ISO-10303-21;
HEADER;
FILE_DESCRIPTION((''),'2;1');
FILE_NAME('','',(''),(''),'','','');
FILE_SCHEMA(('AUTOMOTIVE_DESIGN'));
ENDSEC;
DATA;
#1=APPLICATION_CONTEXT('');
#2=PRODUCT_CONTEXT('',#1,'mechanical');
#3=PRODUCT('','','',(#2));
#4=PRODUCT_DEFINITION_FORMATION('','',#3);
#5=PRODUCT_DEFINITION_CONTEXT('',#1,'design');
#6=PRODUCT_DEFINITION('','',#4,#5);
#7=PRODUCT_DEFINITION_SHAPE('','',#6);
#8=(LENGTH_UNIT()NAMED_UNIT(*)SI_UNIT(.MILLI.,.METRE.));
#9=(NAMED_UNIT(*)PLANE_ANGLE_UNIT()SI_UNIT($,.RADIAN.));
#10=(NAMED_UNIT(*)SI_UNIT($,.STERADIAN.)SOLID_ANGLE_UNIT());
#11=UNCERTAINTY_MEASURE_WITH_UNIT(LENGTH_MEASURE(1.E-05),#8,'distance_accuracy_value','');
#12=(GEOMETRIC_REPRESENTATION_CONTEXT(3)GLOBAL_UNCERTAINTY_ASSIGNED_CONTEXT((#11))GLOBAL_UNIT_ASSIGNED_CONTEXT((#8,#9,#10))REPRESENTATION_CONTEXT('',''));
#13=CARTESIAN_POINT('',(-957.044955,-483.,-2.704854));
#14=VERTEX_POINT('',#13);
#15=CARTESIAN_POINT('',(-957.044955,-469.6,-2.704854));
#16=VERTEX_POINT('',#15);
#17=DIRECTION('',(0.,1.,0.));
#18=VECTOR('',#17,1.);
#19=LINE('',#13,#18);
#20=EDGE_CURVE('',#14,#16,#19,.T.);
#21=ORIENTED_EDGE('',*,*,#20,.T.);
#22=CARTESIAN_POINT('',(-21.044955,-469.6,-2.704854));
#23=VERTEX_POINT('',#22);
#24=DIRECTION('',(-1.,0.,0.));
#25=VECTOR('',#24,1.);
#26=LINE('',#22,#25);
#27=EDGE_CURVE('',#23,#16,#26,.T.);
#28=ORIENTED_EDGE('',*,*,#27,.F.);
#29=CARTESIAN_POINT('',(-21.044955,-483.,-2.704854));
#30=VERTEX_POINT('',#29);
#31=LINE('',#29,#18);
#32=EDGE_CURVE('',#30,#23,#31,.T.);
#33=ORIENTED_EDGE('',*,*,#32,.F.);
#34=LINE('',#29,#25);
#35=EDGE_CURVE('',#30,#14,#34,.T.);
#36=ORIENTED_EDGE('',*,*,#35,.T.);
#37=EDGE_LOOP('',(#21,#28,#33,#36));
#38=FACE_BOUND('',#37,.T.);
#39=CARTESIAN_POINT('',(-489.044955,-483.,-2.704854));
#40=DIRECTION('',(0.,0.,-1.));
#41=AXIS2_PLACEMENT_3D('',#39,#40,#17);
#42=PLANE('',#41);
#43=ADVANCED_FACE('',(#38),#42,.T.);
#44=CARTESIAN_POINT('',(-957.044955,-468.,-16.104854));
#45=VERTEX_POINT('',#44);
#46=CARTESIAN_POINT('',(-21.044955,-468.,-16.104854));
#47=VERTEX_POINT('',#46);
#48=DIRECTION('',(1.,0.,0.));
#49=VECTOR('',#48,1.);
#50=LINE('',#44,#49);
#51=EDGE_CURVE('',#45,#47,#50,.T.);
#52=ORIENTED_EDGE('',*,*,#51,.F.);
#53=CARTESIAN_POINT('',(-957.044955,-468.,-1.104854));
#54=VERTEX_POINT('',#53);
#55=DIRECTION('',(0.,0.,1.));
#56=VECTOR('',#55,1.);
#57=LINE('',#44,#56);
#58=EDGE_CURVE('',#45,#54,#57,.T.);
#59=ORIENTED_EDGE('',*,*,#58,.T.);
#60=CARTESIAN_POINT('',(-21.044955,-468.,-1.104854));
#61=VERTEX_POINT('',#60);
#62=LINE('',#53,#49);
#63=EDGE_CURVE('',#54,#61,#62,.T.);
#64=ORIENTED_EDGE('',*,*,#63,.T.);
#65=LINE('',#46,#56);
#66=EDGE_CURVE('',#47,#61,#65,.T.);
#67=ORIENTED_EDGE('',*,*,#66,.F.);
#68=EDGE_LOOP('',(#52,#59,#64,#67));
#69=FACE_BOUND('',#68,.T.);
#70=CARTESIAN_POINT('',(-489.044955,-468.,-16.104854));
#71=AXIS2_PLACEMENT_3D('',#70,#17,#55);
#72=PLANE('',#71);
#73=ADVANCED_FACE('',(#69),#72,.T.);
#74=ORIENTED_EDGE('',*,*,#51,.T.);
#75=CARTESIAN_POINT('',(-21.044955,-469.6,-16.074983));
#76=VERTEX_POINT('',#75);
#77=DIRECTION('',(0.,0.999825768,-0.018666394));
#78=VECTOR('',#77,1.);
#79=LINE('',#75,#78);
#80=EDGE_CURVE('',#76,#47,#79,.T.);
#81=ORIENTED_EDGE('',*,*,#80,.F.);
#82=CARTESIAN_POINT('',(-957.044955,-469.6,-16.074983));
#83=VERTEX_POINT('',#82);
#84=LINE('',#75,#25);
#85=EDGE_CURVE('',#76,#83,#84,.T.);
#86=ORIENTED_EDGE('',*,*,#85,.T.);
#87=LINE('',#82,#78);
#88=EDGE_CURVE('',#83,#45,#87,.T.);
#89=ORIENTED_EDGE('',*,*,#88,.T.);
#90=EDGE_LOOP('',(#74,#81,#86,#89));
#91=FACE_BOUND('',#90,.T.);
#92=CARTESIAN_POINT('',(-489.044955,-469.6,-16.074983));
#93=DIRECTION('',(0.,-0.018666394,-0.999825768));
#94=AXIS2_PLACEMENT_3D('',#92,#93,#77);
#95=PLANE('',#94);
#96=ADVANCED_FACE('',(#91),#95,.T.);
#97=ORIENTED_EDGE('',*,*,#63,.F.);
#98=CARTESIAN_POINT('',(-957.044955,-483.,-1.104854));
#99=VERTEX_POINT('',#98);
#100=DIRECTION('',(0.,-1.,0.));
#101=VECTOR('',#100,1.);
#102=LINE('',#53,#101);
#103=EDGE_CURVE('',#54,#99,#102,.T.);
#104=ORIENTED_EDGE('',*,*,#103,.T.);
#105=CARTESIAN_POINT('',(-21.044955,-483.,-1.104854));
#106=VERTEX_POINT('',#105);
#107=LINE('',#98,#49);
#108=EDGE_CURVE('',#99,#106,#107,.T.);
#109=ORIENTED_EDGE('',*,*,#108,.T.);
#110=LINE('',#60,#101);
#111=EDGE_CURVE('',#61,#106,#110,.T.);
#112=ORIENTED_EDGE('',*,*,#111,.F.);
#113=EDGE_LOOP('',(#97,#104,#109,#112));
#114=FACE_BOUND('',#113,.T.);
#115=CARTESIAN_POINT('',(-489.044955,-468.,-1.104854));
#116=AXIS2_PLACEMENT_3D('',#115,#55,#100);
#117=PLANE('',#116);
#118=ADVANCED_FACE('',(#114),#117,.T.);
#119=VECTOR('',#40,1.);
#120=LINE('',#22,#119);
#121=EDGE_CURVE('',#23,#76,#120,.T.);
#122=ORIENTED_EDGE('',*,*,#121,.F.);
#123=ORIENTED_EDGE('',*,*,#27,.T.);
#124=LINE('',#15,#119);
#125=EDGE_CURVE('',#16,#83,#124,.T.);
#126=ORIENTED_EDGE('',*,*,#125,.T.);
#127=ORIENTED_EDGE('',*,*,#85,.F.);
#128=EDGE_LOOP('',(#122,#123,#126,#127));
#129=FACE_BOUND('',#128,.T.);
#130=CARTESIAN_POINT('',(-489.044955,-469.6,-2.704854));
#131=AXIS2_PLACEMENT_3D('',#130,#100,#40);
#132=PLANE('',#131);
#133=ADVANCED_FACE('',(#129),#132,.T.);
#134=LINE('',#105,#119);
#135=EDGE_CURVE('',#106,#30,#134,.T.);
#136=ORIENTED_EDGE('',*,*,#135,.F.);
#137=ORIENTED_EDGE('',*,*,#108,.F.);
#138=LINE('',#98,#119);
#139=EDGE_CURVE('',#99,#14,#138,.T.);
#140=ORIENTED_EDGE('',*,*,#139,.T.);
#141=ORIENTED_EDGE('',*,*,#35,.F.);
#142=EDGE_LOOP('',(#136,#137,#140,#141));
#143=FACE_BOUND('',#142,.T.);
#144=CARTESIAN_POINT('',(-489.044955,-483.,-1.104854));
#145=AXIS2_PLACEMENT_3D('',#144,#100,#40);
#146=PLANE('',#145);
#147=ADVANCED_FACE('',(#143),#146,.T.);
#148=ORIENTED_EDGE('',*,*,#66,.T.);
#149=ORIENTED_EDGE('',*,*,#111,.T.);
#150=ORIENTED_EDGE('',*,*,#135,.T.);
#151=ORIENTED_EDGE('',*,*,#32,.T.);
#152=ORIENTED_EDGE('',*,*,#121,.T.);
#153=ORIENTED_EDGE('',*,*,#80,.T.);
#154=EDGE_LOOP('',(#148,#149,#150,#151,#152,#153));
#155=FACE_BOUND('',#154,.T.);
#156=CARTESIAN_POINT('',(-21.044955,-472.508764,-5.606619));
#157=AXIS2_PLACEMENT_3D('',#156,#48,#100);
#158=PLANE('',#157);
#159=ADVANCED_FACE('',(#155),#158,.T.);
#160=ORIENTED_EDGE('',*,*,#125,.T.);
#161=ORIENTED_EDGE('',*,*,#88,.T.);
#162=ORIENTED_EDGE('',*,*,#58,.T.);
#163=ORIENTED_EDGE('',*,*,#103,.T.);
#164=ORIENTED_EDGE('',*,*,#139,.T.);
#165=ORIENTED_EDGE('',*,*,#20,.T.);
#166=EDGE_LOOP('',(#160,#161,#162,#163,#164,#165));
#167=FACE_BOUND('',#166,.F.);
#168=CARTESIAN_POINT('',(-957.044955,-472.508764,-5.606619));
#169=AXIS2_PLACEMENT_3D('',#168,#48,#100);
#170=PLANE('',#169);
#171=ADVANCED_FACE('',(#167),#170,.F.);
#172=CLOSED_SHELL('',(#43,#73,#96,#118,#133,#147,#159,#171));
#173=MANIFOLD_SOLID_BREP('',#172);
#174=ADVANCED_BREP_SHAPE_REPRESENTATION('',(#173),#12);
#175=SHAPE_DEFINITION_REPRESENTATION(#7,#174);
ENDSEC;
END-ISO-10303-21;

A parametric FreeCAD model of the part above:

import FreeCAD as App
import Part
import Sketcher
Q = App.Units.Quantity


def add_polygon(sketch, points):
    """Adds a closed chain of lines whose ends are joined by coincident constraints."""
    first, n = sketch.GeometryCount, len(points)
    for a, b in zip(points, points[1:] + points[:1]):
        sketch.addGeometry(Part.LineSegment(App.Vector(*a, 0), App.Vector(*b, 0)), False)
    for i in range(n):
        sketch.addConstraint(Sketcher.Constraint("Coincident", first + i, 2, first + (i + 1) % n, 1))

doc = App.newDocument("Part")
params = doc.addObject("Spreadsheet::Sheet", "Params")
for row, (alias, value) in enumerate([
    ("sketch1_width", "15 mm"),
    ("sketch1_width2", "13.4 mm"),
    ("sketch1_height", "1.6 mm"),
    ("pad1_length", "936 mm"),
], start=1):
    params.set(f"A{row}", alias)
    params.set(f"B{row}", "=" + value)
    params.setAlias(f"B{row}", alias)

body = doc.addObject("PartDesign::Body", "Body")

# Sketch on XZ plane
sketch1 = doc.addObject("Sketcher::SketchObject", "Sketch")
body.addObject(sketch1)
sketch1.AttachmentSupport = (doc.XZ_Plane, [""])
sketch1.MapMode = "FlatFace"
add_polygon(sketch1, [(-19.444955, 13.865274), (-21.044955, 13.895146), (-21.044955, -1.104854), (-6.044955, -1.104854), (-6.044955, 0.495146), (-19.444955, 0.495146)])  # lines 0-5
sketch1.addConstraint(Sketcher.Constraint("Vertical", 1))
sketch1.addConstraint(Sketcher.Constraint("Horizontal", 2))
sketch1.addConstraint(Sketcher.Constraint("Vertical", 3))
sketch1.addConstraint(Sketcher.Constraint("Horizontal", 4))
sketch1.addConstraint(Sketcher.Constraint("Vertical", 5))
sketch1.addConstraint(Sketcher.Constraint("Equal", 2, 1))
sketch1.addConstraint(Sketcher.Constraint("DistanceX", 2, 1, 2, 2, Q("15 mm")))
sketch1.addConstraint(Sketcher.Constraint("DistanceX", 4, 2, 4, 1, Q("13.4 mm")))
sketch1.addConstraint(Sketcher.Constraint("DistanceY", 3, 1, 3, 2, Q("1.6 mm")))
sketch1.addConstraint(Sketcher.Constraint("DistanceY", 5, 1, 5, 2, Q("13.370129 mm")))
sketch1.addConstraint(Sketcher.Constraint("DistanceX", 0, 2, -1, 1, Q("21.044955 mm")))
sketch1.addConstraint(Sketcher.Constraint("DistanceY", -1, 1, 0, 2, Q("13.895146 mm")))
sketch1.setExpression("Constraints[12]", "Params.sketch1_width")
sketch1.setExpression("Constraints[13]", "Params.sketch1_width2")
sketch1.setExpression("Constraints[14]", "Params.sketch1_height")
pad1 = doc.addObject("PartDesign::Pad", "Pad")
body.addObject(pad1)
pad1.Profile = sketch1
pad1.setExpression("Length", "Params.pad1_length")
pad1.Midplane = True
body2 = doc.addObject("PartDesign::Body", "Body001")
doc.recompute()

body.Placement = App.Placement(App.Vector(-42.089911, 0, -2.209709), App.Rotation(App.Vector(0, -1, 0), 180))
boolean = doc.addObject("PartDesign::Boolean", "Boolean")
body2.addObject(boolean)
boolean.Type = "Fuse"
boolean.addObjects([body])
body3 = doc.addObject("PartDesign::Body", "Body002")
doc.recompute()

body2.Placement = App.Placement(App.Vector(-489.044955, -446.955045, 0), App.Rotation(App.Vector(0, 0, 1), 90))
boolean2 = doc.addObject("PartDesign::Boolean", "Boolean001")
body3.addObject(boolean2)
boolean2.Type = "Fuse"
boolean2.addObjects([body2])

doc.recompute()
